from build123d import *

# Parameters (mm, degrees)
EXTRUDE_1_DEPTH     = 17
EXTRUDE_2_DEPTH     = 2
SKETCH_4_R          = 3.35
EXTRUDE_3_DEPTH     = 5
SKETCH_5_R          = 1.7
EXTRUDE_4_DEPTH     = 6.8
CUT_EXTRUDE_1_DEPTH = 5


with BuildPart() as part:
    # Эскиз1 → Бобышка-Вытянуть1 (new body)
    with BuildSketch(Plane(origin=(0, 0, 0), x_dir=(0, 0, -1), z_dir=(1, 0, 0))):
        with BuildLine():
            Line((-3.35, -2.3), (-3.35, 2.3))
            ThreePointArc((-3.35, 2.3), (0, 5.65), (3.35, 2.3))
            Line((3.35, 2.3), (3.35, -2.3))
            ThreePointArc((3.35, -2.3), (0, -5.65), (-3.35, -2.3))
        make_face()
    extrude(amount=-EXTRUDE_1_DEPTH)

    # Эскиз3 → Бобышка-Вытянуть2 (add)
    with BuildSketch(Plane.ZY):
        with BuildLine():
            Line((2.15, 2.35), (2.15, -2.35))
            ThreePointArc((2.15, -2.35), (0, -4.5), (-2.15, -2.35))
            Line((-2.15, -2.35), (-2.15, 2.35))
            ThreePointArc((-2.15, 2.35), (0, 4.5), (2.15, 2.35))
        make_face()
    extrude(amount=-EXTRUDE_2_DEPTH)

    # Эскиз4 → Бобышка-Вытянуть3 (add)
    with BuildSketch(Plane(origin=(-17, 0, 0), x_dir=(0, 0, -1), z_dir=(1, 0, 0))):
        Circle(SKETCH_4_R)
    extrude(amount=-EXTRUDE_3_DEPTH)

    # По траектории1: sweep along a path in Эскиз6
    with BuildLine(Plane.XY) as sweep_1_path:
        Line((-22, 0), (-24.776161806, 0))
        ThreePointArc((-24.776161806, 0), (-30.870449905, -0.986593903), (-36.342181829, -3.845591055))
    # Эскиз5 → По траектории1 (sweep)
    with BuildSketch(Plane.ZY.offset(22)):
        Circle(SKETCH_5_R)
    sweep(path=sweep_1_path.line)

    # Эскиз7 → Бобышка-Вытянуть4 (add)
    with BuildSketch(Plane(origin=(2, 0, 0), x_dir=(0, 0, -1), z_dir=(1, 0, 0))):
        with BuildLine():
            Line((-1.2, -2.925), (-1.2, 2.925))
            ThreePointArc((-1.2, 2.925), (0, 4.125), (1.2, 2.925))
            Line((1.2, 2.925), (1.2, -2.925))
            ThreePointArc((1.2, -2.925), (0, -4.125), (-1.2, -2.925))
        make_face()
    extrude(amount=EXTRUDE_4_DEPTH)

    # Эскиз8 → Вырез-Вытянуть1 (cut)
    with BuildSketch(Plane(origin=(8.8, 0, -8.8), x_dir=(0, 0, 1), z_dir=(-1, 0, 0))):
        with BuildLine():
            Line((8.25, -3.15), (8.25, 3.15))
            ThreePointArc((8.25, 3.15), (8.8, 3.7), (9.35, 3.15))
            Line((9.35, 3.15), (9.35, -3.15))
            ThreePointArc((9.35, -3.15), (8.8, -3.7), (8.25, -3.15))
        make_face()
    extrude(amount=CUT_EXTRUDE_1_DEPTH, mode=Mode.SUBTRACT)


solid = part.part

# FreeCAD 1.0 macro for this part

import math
import FreeCAD as App
import Part
import Sketcher
from FreeCAD import Vector
Q = App.Units.Quantity

doc = App.newDocument("Part")
body = doc.addObject("PartDesign::Body", "Body")

sketch1 = body.newObject("Sketcher::SketchObject", "Sketch")
sketch1.AttachmentSupport = (doc.getObject("YZ_Plane"), [""])
sketch1.MapMode = "FlatFace"
sketch1.addGeometry(Part.LineSegment(Vector(2.3, 3.4, 0), Vector(-2.3, 3.4, 0)), False)
sketch1.addGeometry(Part.ArcOfCircle(Part.Circle(Vector(-2.3, 0, 0), Vector(0, 0, 1), 3.4), math.radians(90), math.radians(270)), False)
sketch1.addGeometry(Part.LineSegment(Vector(-2.3, -3.4, 0), Vector(2.3, -3.4, 0)), False)
sketch1.addGeometry(Part.ArcOfCircle(Part.Circle(Vector(2.3, 0, 0), Vector(0, 0, 1), 3.4), math.radians(-90), math.radians(90)), False)
sketch1.addConstraint(Sketcher.Constraint("Tangent", 0, 2, 1, 1))
sketch1.addConstraint(Sketcher.Constraint("Tangent", 1, 2, 2, 1))
sketch1.addConstraint(Sketcher.Constraint("Tangent", 2, 2, 3, 1))
sketch1.addConstraint(Sketcher.Constraint("Tangent", 3, 2, 0, 1))
sketch1.addConstraint(Sketcher.Constraint("Horizontal", 0))
sketch1.addConstraint(Sketcher.Constraint("Horizontal", 2))
sketch1.addConstraint(Sketcher.Constraint("Symmetric", 1, 3, 3, 3, -1, 1))
sketch1.addConstraint(Sketcher.Constraint("Radius", 1, Q("3.35 mm")))
sketch1.addConstraint(Sketcher.Constraint("DistanceX", 0, 2, 0, 1, Q("4.6 mm")))
pad1 = body.newObject("PartDesign::Pad", "Pad")
pad1.Profile = sketch1
pad1.Length = 17
pad1.Reversed = True

sketch2 = body.newObject("Sketcher::SketchObject", "Sketch001")
sketch2.AttachmentSupport = (doc.getObject("YZ_Plane"), [""])
sketch2.MapMode = "FlatFace"
sketch2.addGeometry(Part.LineSegment(Vector(-2.4, 2.1, 0), Vector(2.4, 2.1, 0)), False)
sketch2.addGeometry(Part.ArcOfCircle(Part.Circle(Vector(2.4, 0, 0), Vector(0, 0, 1), 2.1), math.radians(-90), math.radians(90)), False)
sketch2.addGeometry(Part.LineSegment(Vector(2.4, -2.1, 0), Vector(-2.4, -2.1, 0)), False)
sketch2.addGeometry(Part.ArcOfCircle(Part.Circle(Vector(-2.4, 0, 0), Vector(0, 0, 1), 2.1), math.radians(90), math.radians(270)), False)
sketch2.addConstraint(Sketcher.Constraint("Tangent", 0, 2, 1, 2))
sketch2.addConstraint(Sketcher.Constraint("Tangent", 1, 1, 2, 1))
sketch2.addConstraint(Sketcher.Constraint("Tangent", 2, 2, 3, 2))
sketch2.addConstraint(Sketcher.Constraint("Tangent", 3, 1, 0, 1))
sketch2.addConstraint(Sketcher.Constraint("Horizontal", 0))
sketch2.addConstraint(Sketcher.Constraint("Horizontal", 2))
sketch2.addConstraint(Sketcher.Constraint("Symmetric", 1, 3, 3, 3, -1, 1))
sketch2.addConstraint(Sketcher.Constraint("Radius", 1, Q("2.15 mm")))
sketch2.addConstraint(Sketcher.Constraint("DistanceX", 0, 1, 0, 2, Q("4.7 mm")))
pad2 = body.newObject("PartDesign::Pad", "Pad001")
pad2.Profile = sketch2
pad2.Length = 2

sketch3 = body.newObject("Sketcher::SketchObject", "Sketch002")
sketch3.AttachmentSupport = (doc.getObject("YZ_Plane"), [""])
sketch3.MapMode = "FlatFace"
sketch3.AttachmentOffset = App.Placement(Vector(0, 0, -17), App.Rotation())
sketch3.addGeometry(Part.Circle(Vector(0, 0, 0), Vector(0, 0, 1), 3.4), False)
sketch3.addConstraint(Sketcher.Constraint("Coincident", 0, 3, -1, 1))
sketch3.addConstraint(Sketcher.Constraint("Diameter", 0, Q("6.7 mm")))
pad3 = body.newObject("PartDesign::Pad", "Pad002")
pad3.Profile = sketch3
pad3.Length = 5
pad3.Reversed = True

sketch4 = body.newObject("Sketcher::SketchObject", "Sketch003")
sketch4.AttachmentSupport = (doc.getObject("YZ_Plane"), [""])
sketch4.MapMode = "FlatFace"
sketch4.AttachmentOffset = App.Placement(Vector(0, 0, -22), App.Rotation())
sketch4.addGeometry(Part.Circle(Vector(0, 0, 0), Vector(0, 0, 1), 1.7), False)
sketch4.addConstraint(Sketcher.Constraint("Coincident", 0, 3, -1, 1))
sketch4.addConstraint(Sketcher.Constraint("Diameter", 0, Q("3.4 mm")))

sketch5 = body.newObject("Sketcher::SketchObject", "Sketch004")
sketch5.AttachmentSupport = (doc.getObject("XY_Plane"), [""])
sketch5.MapMode = "FlatFace"
sketch5.addGeometry(Part.LineSegment(Vector(-22, 0, 0), Vector(-24.8, 0, 0)), False)
sketch5.addGeometry(Part.ArcOfCircle(Part.Circle(Vector(-24.8, -19.3, 0), Vector(0, 0, 1), 19.3), math.radians(90), math.radians(127)), False)
sketch5.addConstraint(Sketcher.Constraint("Tangent", 0, 2, 1, 1))
sketch5.addConstraint(Sketcher.Constraint("Horizontal", 0))
sketch5.addConstraint(Sketcher.Constraint("PointOnObject", 0, 1, -1))
sketch5.addConstraint(Sketcher.Constraint("DistanceX", 0, 1, -1, 1, Q("22 mm")))
sketch5.addConstraint(Sketcher.Constraint("Radius", 1, Q("19.315807 mm")))
sketch5.addConstraint(Sketcher.Constraint("DistanceX", 0, 2, 0, 1, Q("2.776162 mm")))
sketch5.addConstraint(Sketcher.Constraint("DistanceX", 1, 2, -1, 1, Q("36.342182 mm")))
doc.recompute()

additivepipe = body.newObject("PartDesign::AdditivePipe", "AdditivePipe")
additivepipe.Profile = sketch4
additivepipe.Spine = (sketch5, ["Edge1", "Edge2"])

sketch6 = body.newObject("Sketcher::SketchObject", "Sketch005")
sketch6.AttachmentSupport = (doc.getObject("YZ_Plane"), [""])
sketch6.MapMode = "FlatFace"
sketch6.AttachmentOffset = App.Placement(Vector(0, 0, 2), App.Rotation())
sketch6.addGeometry(Part.LineSegment(Vector(2.9, 1.2, 0), Vector(-2.9, 1.2, 0)), False)
sketch6.addGeometry(Part.ArcOfCircle(Part.Circle(Vector(-2.9, 0, 0), Vector(0, 0, 1), 1.2), math.radians(90), math.radians(270)), False)
sketch6.addGeometry(Part.LineSegment(Vector(-2.9, -1.2, 0), Vector(2.9, -1.2, 0)), False)
sketch6.addGeometry(Part.ArcOfCircle(Part.Circle(Vector(2.9, 0, 0), Vector(0, 0, 1), 1.2), math.radians(-90), math.radians(90)), False)
sketch6.addConstraint(Sketcher.Constraint("Tangent", 0, 2, 1, 1))
sketch6.addConstraint(Sketcher.Constraint("Tangent", 1, 2, 2, 1))
sketch6.addConstraint(Sketcher.Constraint("Tangent", 2, 2, 3, 1))
sketch6.addConstraint(Sketcher.Constraint("Tangent", 3, 2, 0, 1))
sketch6.addConstraint(Sketcher.Constraint("Horizontal", 0))
sketch6.addConstraint(Sketcher.Constraint("Horizontal", 2))
sketch6.addConstraint(Sketcher.Constraint("Symmetric", 1, 3, 3, 3, -1, 1))
sketch6.addConstraint(Sketcher.Constraint("Radius", 1, Q("1.2 mm")))
sketch6.addConstraint(Sketcher.Constraint("DistanceX", 0, 2, 0, 1, Q("5.85 mm")))
pad4 = body.newObject("PartDesign::Pad", "Pad003")
pad4.Profile = sketch6
pad4.Length = 6.8

sketch7 = body.newObject("Sketcher::SketchObject", "Sketch006")
sketch7.AttachmentSupport = (doc.getObject("YZ_Plane"), [""])
sketch7.MapMode = "FlatFace"
sketch7.AttachmentOffset = App.Placement(Vector(0, 0, 8.8), App.Rotation())
sketch7.addGeometry(Part.LineSegment(Vector(3.1, -0.6, 0), Vector(-3.1, -0.6, 0)), False)
sketch7.addGeometry(Part.ArcOfCircle(Part.Circle(Vector(-3.1, 0, 0), Vector(0, 0, 1), 0.6), math.radians(90), math.radians(270)), False)
sketch7.addGeometry(Part.LineSegment(Vector(-3.1, 0.6, 0), Vector(3.1, 0.6, 0)), False)
sketch7.addGeometry(Part.ArcOfCircle(Part.Circle(Vector(3.1, 0, 0), Vector(0, 0, 1), 0.6), math.radians(-90), math.radians(90)), False)
sketch7.addConstraint(Sketcher.Constraint("Tangent", 0, 2, 1, 2))
sketch7.addConstraint(Sketcher.Constraint("Tangent", 1, 1, 2, 1))
sketch7.addConstraint(Sketcher.Constraint("Tangent", 2, 2, 3, 2))
sketch7.addConstraint(Sketcher.Constraint("Tangent", 3, 1, 0, 1))
sketch7.addConstraint(Sketcher.Constraint("Horizontal", 0))
sketch7.addConstraint(Sketcher.Constraint("Horizontal", 2))
sketch7.addConstraint(Sketcher.Constraint("Symmetric", 1, 3, 3, 3, -1, 1))
sketch7.addConstraint(Sketcher.Constraint("Radius", 1, Q("0.55 mm")))
sketch7.addConstraint(Sketcher.Constraint("DistanceX", 0, 2, 0, 1, Q("6.3 mm")))
pocket1 = body.newObject("PartDesign::Pocket", "Pocket")
pocket1.Profile = sketch7
pocket1.Length = 5

doc.recompute()
